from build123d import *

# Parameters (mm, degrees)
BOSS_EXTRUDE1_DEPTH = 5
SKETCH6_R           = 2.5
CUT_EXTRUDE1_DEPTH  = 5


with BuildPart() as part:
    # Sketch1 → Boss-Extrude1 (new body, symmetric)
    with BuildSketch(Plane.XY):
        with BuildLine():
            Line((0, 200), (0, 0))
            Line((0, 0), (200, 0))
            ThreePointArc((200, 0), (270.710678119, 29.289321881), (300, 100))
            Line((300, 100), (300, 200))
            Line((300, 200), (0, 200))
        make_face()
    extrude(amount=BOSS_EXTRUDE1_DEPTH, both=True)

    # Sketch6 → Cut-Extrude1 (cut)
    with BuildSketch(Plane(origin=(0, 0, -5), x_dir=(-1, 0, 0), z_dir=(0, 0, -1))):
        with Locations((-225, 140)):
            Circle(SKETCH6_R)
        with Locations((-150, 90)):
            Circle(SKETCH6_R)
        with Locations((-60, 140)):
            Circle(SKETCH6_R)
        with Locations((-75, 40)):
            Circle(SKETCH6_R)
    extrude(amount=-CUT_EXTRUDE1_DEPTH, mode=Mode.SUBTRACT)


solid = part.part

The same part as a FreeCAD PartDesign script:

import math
import FreeCAD as App
import Part
import Sketcher
Q = App.Units.Quantity

doc = App.newDocument("Part")
body = doc.addObject("PartDesign::Body", "Body")

sketch1 = body.newObject("Sketcher::SketchObject", "Sketch")
sketch1.AttachmentSupport = (doc.getObject("XY_Plane"), [""])
sketch1.MapMode = "FlatFace"
sketch1.addGeometry([
    Part.LineSegment(App.Vector(0, 200, 0), App.Vector(0, 0, 0)),
    Part.LineSegment(App.Vector(0, 0, 0), App.Vector(200, 0, 0)),
    Part.ArcOfCircle(Part.Circle(App.Vector(200, 100, 0), App.Vector(0, 0, 1), 100), math.radians(-90), math.radians(0)),
    Part.LineSegment(App.Vector(300, 100, 0), App.Vector(300, 200, 0)),
    Part.LineSegment(App.Vector(300, 200, 0), App.Vector(0, 200, 0)),
], False)
sketch1.addConstraint([
    Sketcher.Constraint("Coincident", 0, 2, 1, 1),
    Sketcher.Constraint("Tangent", 1, 2, 2, 1),
    Sketcher.Constraint("Tangent", 2, 2, 3, 1),
    Sketcher.Constraint("Coincident", 3, 2, 4, 1),
    Sketcher.Constraint("Coincident", 4, 2, 0, 1),
    Sketcher.Constraint("Vertical", 0),
    Sketcher.Constraint("Horizontal", 1),
    Sketcher.Constraint("Vertical", 3),
    Sketcher.Constraint("Horizontal", 4),
    Sketcher.Constraint("Coincident", 0, 2, -1, 1),
    Sketcher.Constraint("Equal", 1, 0),
    Sketcher.Constraint("Radius", 2, Q("100 mm")),
    Sketcher.Constraint("DistanceX", 1, 1, 1, 2, Q("200 mm")),
])
pad1 = body.newObject("PartDesign::Pad", "Pad")
pad1.Profile = sketch1
pad1.Length = 10
pad1.Midplane = True

sketch2 = body.newObject("Sketcher::SketchObject", "Sketch001")
sketch2.AttachmentSupport = (doc.getObject("XY_Plane"), [""])
sketch2.MapMode = "FlatFace"
sketch2.AttachmentOffset = App.Placement(App.Vector(0, 0, -5), App.Rotation())
sketch2.addGeometry([
    Part.Circle(App.Vector(225, 140, 0), App.Vector(0, 0, 1), 2.5),
    Part.Circle(App.Vector(150, 90, 0), App.Vector(0, 0, 1), 2.5),
    Part.Circle(App.Vector(60, 140, 0), App.Vector(0, 0, 1), 2.5),
    Part.Circle(App.Vector(75, 40, 0), App.Vector(0, 0, 1), 2.5),
], False)
sketch2.addConstraint([
    Sketcher.Constraint("Equal", 0, 1),
    Sketcher.Constraint("Equal", 1, 2),
    Sketcher.Constraint("Equal", 2, 3),
    Sketcher.Constraint("Horizontal", 0, 3, 2, 3),
    Sketcher.Constraint("Diameter", 0, Q("5 mm")),
    Sketcher.Constraint("DistanceX", -1, 1, 0, 3, Q("225 mm")),
    Sketcher.Constraint("DistanceY", -1, 1, 0, 3, Q("140 mm")),
    Sketcher.Constraint("DistanceX", -1, 1, 1, 3, Q("150 mm")),
    Sketcher.Constraint("DistanceY", -1, 1, 1, 3, Q("90 mm")),
    Sketcher.Constraint("DistanceX", -1, 1, 2, 3, Q("60 mm")),
    Sketcher.Constraint("DistanceX", -1, 1, 3, 3, Q("75 mm")),
    Sketcher.Constraint("DistanceY", -1, 1, 3, 3, Q("40 mm")),
])
pocket1 = body.newObject("PartDesign::Pocket", "Pocket")
pocket1.Profile = sketch2
pocket1.Length = 5
pocket1.Reversed = True

doc.recompute()
